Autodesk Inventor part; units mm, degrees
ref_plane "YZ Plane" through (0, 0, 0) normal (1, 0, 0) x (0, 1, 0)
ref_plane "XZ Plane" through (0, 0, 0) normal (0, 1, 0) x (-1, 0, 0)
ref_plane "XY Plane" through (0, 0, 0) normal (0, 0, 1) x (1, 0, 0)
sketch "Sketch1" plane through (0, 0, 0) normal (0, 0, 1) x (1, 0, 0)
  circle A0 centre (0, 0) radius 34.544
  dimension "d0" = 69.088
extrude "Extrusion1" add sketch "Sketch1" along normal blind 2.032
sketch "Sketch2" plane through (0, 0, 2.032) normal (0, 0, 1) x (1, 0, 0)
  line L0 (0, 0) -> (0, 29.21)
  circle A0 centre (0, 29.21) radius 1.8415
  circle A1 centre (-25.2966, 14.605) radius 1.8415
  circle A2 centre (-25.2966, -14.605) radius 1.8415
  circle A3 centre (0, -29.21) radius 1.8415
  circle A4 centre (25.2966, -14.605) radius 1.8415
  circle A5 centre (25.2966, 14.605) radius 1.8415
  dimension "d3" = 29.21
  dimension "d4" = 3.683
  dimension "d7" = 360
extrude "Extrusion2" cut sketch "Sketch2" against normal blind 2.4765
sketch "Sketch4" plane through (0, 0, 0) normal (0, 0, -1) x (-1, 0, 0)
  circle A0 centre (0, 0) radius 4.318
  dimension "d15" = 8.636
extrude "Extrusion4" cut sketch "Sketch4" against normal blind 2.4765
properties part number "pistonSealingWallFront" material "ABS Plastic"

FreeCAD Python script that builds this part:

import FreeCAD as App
import Part
import Sketcher
from FreeCAD import Vector
Q = App.Units.Quantity

doc = App.newDocument("Part")
body = doc.addObject("PartDesign::Body", "Body")

sketch1 = doc.addObject("Sketcher::SketchObject", "Sketch")
body.addObject(sketch1)
sketch1.AttachmentSupport = (doc.XY_Plane, [""])
sketch1.MapMode = "FlatFace"
sketch1.addGeometry(Part.Circle(Vector(0, 0, 0), Vector(0, 0, 1), 35), False)
sketch1.addConstraint([
    Sketcher.Constraint("Coincident", 0, 3, -1, 1),
    Sketcher.Constraint("Diameter", 0, Q("2.72 in")),
])
pad1 = doc.addObject("PartDesign::Pad", "Pad")
body.addObject(pad1)
pad1.Profile = sketch1
pad1.Length = Q("0.08 in")

sketch2 = doc.addObject("Sketcher::SketchObject", "Sketch001")
body.addObject(sketch2)
sketch2.AttachmentSupport = (doc.XY_Plane, [""])
sketch2.MapMode = "FlatFace"
sketch2.AttachmentOffset = App.Placement(Vector(0, 0, 0.08 * 25.4), App.Rotation())
sketch2.addGeometry([
    Part.Circle(Vector(0, 29.2, 0), Vector(0, 0, 1), 1.8),
    Part.Circle(Vector(-25.3, 14.6, 0), Vector(0, 0, 1), 1.8),
    Part.Circle(Vector(-25.3, -14.6, 0), Vector(0, 0, 1), 1.8),
    Part.Circle(Vector(0, -29.2, 0), Vector(0, 0, 1), 1.8),
    Part.Circle(Vector(25.3, -14.6, 0), Vector(0, 0, 1), 1.8),
    Part.Circle(Vector(25.3, 14.6, 0), Vector(0, 0, 1), 1.8),
], False)
sketch2.addConstraint([
    Sketcher.Constraint("Equal", 0, 1),
    Sketcher.Constraint("Equal", 1, 2),
    Sketcher.Constraint("Equal", 2, 3),
    Sketcher.Constraint("Equal", 3, 4),
    Sketcher.Constraint("Equal", 4, 5),
    Sketcher.Constraint("Symmetric", 0, 3, 3, 3, -1, 1),
    Sketcher.Constraint("Symmetric", 1, 3, 4, 3, -1, 1),
    Sketcher.Constraint("Symmetric", 2, 3, 5, 3, -1, 1),
    Sketcher.Constraint("Symmetric", 2, 3, 4, 3, -2),
    Sketcher.Constraint("PointOnObject", 0, 3, -2),
    Sketcher.Constraint("Diameter", 0, Q("0.145 in")),
    Sketcher.Constraint("DistanceY", -1, 1, 0, 3, Q("1.15 in")),
    Sketcher.Constraint("DistanceY", 2, 3, 1, 3, Q("1.15 in")),
    Sketcher.Constraint("DistanceX", 1, 3, -1, 1, Q("25.2966 mm")),
])
pocket1 = doc.addObject("PartDesign::Pocket", "Pocket")
body.addObject(pocket1)
pocket1.Profile = sketch2
pocket1.Length = Q("0.0975 in")

sketch3 = doc.addObject("Sketcher::SketchObject", "Sketch002")
body.addObject(sketch3)
sketch3.AttachmentSupport = (doc.XY_Plane, [""])
sketch3.MapMode = "FlatFace"
sketch3.addGeometry(Part.Circle(Vector(0, 0, 0), Vector(0, 0, 1), 4.3), False)
sketch3.addConstraint([
    Sketcher.Constraint("Coincident", 0, 3, -1, 1),
    Sketcher.Constraint("Diameter", 0, Q("0.34 in")),
])
pocket2 = doc.addObject("PartDesign::Pocket", "Pocket001")
body.addObject(pocket2)
pocket2.Profile = sketch3
pocket2.Length = Q("0.0975 in")
pocket2.Reversed = True

doc.recompute()
